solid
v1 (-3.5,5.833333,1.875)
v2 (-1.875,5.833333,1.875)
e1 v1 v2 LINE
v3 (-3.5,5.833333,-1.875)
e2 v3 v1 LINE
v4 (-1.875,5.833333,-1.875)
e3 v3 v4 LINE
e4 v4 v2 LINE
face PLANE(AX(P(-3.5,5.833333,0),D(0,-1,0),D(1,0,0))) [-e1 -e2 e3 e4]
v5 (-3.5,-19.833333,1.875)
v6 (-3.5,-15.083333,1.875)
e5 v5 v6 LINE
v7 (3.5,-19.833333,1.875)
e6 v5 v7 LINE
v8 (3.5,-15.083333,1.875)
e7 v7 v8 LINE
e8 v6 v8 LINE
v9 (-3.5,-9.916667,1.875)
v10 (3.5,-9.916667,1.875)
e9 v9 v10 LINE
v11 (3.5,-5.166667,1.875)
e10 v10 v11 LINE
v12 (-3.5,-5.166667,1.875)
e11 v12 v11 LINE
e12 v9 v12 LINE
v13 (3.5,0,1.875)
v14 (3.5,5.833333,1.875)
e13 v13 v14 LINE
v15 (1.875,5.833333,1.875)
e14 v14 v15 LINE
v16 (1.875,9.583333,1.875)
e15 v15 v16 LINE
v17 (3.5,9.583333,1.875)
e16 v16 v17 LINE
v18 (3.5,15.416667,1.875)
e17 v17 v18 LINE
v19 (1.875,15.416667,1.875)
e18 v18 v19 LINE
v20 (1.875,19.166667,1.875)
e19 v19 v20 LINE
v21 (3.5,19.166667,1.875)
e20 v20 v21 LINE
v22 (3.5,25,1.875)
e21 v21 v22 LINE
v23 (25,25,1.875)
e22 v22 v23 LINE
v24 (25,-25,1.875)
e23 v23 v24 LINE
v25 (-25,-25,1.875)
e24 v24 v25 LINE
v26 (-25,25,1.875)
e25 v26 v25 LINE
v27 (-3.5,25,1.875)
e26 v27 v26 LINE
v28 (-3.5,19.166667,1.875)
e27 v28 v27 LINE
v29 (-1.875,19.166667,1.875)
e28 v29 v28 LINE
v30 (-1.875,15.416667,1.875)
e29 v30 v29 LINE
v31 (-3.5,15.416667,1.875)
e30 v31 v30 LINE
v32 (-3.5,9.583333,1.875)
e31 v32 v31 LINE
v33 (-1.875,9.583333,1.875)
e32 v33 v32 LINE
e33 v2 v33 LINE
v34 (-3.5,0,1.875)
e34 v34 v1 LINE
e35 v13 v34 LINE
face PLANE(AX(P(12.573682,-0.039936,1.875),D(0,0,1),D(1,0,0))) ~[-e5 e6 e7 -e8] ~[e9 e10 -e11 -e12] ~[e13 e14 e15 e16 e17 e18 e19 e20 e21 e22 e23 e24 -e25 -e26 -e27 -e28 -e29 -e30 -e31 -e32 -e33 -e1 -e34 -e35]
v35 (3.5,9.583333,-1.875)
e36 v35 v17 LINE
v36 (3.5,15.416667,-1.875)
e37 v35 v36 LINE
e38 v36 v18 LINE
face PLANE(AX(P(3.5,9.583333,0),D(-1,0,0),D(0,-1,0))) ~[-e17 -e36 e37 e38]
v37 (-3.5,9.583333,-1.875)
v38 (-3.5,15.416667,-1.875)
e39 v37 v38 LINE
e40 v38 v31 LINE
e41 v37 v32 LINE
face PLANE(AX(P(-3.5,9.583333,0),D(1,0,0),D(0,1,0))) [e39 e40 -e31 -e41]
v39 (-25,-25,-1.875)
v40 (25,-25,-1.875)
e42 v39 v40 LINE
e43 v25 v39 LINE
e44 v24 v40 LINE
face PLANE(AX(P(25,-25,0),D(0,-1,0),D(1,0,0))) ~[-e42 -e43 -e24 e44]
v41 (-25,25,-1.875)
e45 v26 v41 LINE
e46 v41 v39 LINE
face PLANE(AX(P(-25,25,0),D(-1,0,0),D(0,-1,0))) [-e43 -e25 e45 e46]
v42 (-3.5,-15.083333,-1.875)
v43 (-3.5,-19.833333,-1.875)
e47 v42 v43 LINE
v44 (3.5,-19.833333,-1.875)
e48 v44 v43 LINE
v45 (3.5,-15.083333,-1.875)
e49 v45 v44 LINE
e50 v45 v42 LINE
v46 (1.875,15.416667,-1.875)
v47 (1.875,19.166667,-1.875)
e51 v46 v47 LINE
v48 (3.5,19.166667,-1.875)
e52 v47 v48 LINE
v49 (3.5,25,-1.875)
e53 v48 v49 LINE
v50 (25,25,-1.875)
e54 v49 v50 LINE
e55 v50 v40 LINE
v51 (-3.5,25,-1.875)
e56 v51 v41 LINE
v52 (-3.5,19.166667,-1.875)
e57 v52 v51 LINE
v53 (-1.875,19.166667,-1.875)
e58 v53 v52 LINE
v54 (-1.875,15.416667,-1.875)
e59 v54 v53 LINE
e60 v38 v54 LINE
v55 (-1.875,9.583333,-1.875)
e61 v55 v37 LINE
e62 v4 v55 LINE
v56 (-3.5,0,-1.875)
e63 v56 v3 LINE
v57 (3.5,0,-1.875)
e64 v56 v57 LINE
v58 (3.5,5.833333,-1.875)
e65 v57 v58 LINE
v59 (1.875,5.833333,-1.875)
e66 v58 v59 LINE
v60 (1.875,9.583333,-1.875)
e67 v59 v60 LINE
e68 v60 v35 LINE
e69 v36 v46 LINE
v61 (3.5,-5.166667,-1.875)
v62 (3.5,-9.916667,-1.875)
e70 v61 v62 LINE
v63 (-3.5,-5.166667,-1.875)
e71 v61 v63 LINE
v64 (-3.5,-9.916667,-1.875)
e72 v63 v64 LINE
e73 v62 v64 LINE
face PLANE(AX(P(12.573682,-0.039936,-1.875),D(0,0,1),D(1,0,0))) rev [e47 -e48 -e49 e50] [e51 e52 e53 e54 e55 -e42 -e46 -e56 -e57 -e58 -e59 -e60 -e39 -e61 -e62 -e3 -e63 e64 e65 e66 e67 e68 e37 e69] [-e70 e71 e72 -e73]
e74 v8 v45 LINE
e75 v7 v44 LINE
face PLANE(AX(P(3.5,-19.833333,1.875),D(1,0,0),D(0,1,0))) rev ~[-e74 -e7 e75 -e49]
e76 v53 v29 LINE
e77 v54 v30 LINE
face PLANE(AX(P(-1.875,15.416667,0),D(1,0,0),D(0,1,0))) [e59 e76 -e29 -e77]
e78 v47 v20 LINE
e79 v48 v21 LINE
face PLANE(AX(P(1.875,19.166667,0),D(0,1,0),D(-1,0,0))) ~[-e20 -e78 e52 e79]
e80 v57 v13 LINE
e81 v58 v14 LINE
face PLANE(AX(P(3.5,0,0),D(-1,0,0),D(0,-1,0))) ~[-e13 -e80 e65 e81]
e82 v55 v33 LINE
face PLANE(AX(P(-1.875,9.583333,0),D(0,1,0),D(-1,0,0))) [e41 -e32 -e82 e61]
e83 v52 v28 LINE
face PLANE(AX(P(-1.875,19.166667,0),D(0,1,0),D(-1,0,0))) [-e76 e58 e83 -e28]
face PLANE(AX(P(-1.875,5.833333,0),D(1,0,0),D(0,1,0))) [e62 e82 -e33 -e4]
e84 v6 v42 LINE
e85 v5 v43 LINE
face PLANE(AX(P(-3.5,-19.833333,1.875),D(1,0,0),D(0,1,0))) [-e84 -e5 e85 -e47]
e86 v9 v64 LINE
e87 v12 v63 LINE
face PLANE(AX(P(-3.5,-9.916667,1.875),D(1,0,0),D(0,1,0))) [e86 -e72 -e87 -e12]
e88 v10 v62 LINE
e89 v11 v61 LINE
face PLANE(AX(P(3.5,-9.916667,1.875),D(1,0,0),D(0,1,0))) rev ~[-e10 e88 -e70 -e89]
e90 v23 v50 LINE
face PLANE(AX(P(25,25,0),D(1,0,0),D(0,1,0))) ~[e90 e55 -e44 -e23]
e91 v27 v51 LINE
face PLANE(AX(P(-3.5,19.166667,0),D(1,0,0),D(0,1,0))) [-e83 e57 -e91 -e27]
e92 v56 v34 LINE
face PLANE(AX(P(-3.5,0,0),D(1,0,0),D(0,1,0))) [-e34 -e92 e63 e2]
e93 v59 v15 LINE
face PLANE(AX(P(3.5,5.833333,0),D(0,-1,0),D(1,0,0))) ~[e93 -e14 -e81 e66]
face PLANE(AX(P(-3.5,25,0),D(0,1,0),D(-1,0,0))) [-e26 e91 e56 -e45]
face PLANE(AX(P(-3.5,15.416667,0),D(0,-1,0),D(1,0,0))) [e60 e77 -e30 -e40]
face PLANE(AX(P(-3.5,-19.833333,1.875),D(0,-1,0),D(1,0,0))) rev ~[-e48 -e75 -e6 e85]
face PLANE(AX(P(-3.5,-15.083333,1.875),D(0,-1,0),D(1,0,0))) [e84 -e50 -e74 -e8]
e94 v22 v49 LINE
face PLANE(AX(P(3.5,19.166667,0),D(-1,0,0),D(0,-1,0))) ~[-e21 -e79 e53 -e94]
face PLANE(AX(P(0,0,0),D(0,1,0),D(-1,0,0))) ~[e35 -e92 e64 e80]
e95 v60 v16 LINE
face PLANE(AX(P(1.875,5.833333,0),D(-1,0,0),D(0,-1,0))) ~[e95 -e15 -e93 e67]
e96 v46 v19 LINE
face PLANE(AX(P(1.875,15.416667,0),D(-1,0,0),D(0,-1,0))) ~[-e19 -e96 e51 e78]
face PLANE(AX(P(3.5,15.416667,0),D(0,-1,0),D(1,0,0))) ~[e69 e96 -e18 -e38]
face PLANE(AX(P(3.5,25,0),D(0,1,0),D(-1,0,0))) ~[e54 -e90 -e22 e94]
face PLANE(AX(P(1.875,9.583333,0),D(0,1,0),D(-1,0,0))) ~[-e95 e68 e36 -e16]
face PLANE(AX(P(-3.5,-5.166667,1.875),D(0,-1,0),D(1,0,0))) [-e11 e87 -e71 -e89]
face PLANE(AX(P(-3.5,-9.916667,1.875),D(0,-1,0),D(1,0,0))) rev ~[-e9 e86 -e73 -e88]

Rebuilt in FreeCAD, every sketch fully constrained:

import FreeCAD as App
import Part
import Sketcher
Q = App.Units.Quantity

doc = App.newDocument("Part")
body = doc.addObject("PartDesign::Body", "Body")

sketch1 = body.newObject("Sketcher::SketchObject", "Sketch")
sketch1.AttachmentSupport = (doc.getObject("XY_Plane"), [""])
sketch1.MapMode = "FlatFace"
sketch1.addGeometry([
    Part.LineSegment(App.Vector(-25, -25, 0), App.Vector(0, -25, 0)),
    Part.LineSegment(App.Vector(0, -25, 0), App.Vector(0, 0, 0)),
    Part.LineSegment(App.Vector(0, 0, 0), App.Vector(-3.5, 0, 0)),
    Part.LineSegment(App.Vector(-3.5, 0, 0), App.Vector(-3.5, 5.8, 0)),
    Part.LineSegment(App.Vector(-3.5, 5.8, 0), App.Vector(-1.9, 5.8, 0)),
    Part.LineSegment(App.Vector(-1.9, 5.8, 0), App.Vector(-1.9, 9.6, 0)),
    Part.LineSegment(App.Vector(-1.9, 9.6, 0), App.Vector(-3.5, 9.6, 0)),
    Part.LineSegment(App.Vector(-3.5, 9.6, 0), App.Vector(-3.5, 15.4, 0)),
    Part.LineSegment(App.Vector(-3.5, 15.4, 0), App.Vector(-1.9, 15.4, 0)),
    Part.LineSegment(App.Vector(-1.9, 15.4, 0), App.Vector(-1.9, 19.2, 0)),
    Part.LineSegment(App.Vector(-1.9, 19.2, 0), App.Vector(-3.5, 19.2, 0)),
    Part.LineSegment(App.Vector(-3.5, 19.2, 0), App.Vector(-3.5, 25, 0)),
    Part.LineSegment(App.Vector(-3.5, 25, 0), App.Vector(-25, 25, 0)),
    Part.LineSegment(App.Vector(-25, 25, 0), App.Vector(-25, -25, 0)),
], False)
sketch1.addConstraint([
    Sketcher.Constraint("Coincident", 0, 2, 1, 1),
    Sketcher.Constraint("Coincident", 1, 2, 2, 1),
    Sketcher.Constraint("Coincident", 2, 2, 3, 1),
    Sketcher.Constraint("Coincident", 3, 2, 4, 1),
    Sketcher.Constraint("Coincident", 4, 2, 5, 1),
    Sketcher.Constraint("Coincident", 5, 2, 6, 1),
    Sketcher.Constraint("Coincident", 6, 2, 7, 1),
    Sketcher.Constraint("Coincident", 7, 2, 8, 1),
    Sketcher.Constraint("Coincident", 8, 2, 9, 1),
    Sketcher.Constraint("Coincident", 9, 2, 10, 1),
    Sketcher.Constraint("Coincident", 10, 2, 11, 1),
    Sketcher.Constraint("Coincident", 11, 2, 12, 1),
    Sketcher.Constraint("Coincident", 12, 2, 13, 1),
    Sketcher.Constraint("Coincident", 13, 2, 0, 1),
    Sketcher.Constraint("Horizontal", 0),
    Sketcher.Constraint("Vertical", 1),
    Sketcher.Constraint("Horizontal", 2),
    Sketcher.Constraint("Vertical", 3),
    Sketcher.Constraint("Horizontal", 4),
    Sketcher.Constraint("Vertical", 5),
    Sketcher.Constraint("Horizontal", 6),
    Sketcher.Constraint("Vertical", 7),
    Sketcher.Constraint("Horizontal", 8),
    Sketcher.Constraint("Vertical", 9),
    Sketcher.Constraint("Horizontal", 10),
    Sketcher.Constraint("Vertical", 11),
    Sketcher.Constraint("Horizontal", 12),
    Sketcher.Constraint("Vertical", 13),
    Sketcher.Constraint("Coincident", 1, 2, -1, 1),
    Sketcher.Constraint("Vertical", 3, 2, 6, 2),
    Sketcher.Constraint("Vertical", 5, 2, 8, 2),
    Sketcher.Constraint("Vertical", 7, 2, 10, 2),
    Sketcher.Constraint("Equal", 0, 1),
    Sketcher.Constraint("Equal", 3, 7),
    Sketcher.Constraint("Equal", 5, 9),
    Sketcher.Constraint("Equal", 7, 11),
    Sketcher.Constraint("DistanceX", 0, 1, 0, 2, Q("25 mm")),
    Sketcher.Constraint("DistanceY", 13, 2, 13, 1, Q("50 mm")),
    Sketcher.Constraint("DistanceX", 2, 2, 2, 1, Q("3.5 mm")),
    Sketcher.Constraint("DistanceY", 5, 1, 5, 2, Q("3.75 mm")),
    Sketcher.Constraint("DistanceX", 4, 1, 4, 2, Q("1.625 mm")),
])
pad1 = body.newObject("PartDesign::Pad", "Pad")
pad1.Profile = sketch1
pad1.Length = 3.75
pad1.Midplane = True
body2 = doc.addObject("PartDesign::Body", "Body001")
doc.recompute()

body2.BaseFeature = body
doc.recompute()

mirroring = doc.addObject("Part::Mirroring", "Mirroring")
mirroring.Source = body
mirroring.Base = App.Vector(0, -12.5, 0)
mirroring.Normal = App.Vector(1, 0, 0)
body3 = doc.addObject("PartDesign::Body", "Body002")
body3.BaseFeature = mirroring
boolean = body2.newObject("PartDesign::Boolean", "Boolean")
boolean.Type = "Fuse"
boolean.addObjects([body3])
doc.recompute()

sketch2 = body2.newObject("Sketcher::SketchObject", "Sketch001")
sketch2.AttachmentSupport = (doc.getObject("XY_Plane001"), [""])
sketch2.MapMode = "FlatFace"
sketch2.AttachmentOffset = App.Placement(App.Vector(0, 0, 1.875), App.Rotation())
sketch2.addGeometry([
    Part.LineSegment(App.Vector(-3.5, -5.2, 0), App.Vector(-3.5, -9.9, 0)),
    Part.LineSegment(App.Vector(-3.5, -9.9, 0), App.Vector(3.5, -9.9, 0)),
    Part.LineSegment(App.Vector(3.5, -9.9, 0), App.Vector(3.5, -5.2, 0)),
    Part.LineSegment(App.Vector(3.5, -5.2, 0), App.Vector(-3.5, -5.2, 0)),
    Part.LineSegment(App.Vector(-3.5, -15.1, 0), App.Vector(-3.5, -19.8, 0)),
    Part.LineSegment(App.Vector(-3.5, -19.8, 0), App.Vector(3.5, -19.8, 0)),
    Part.LineSegment(App.Vector(3.5, -19.8, 0), App.Vector(3.5, -15.1, 0)),
    Part.LineSegment(App.Vector(3.5, -15.1, 0), App.Vector(-3.5, -15.1, 0)),
], False)
sketch2.addConstraint([
    Sketcher.Constraint("Coincident", 0, 2, 1, 1),
    Sketcher.Constraint("Coincident", 1, 2, 2, 1),
    Sketcher.Constraint("Coincident", 2, 2, 3, 1),
    Sketcher.Constraint("Coincident", 3, 2, 0, 1),
    Sketcher.Constraint("Coincident", 4, 2, 5, 1),
    Sketcher.Constraint("Coincident", 5, 2, 6, 1),
    Sketcher.Constraint("Coincident", 6, 2, 7, 1),
    Sketcher.Constraint("Coincident", 7, 2, 4, 1),
    Sketcher.Constraint("Vertical", 0),
    Sketcher.Constraint("Horizontal", 1),
    Sketcher.Constraint("Vertical", 2),
    Sketcher.Constraint("Horizontal", 3),
    Sketcher.Constraint("Vertical", 4),
    Sketcher.Constraint("Horizontal", 5),
    Sketcher.Constraint("Vertical", 6),
    Sketcher.Constraint("Horizontal", 7),
    Sketcher.Constraint("Vertical", 3, 2, 4, 2),
    Sketcher.Constraint("Vertical", 2, 2, 5, 2),
    Sketcher.Constraint("Equal", 2, 4),
    Sketcher.Constraint("DistanceX", 1, 1, 1, 2, Q("7 mm")),
    Sketcher.Constraint("DistanceY", 0, 2, 0, 1, Q("4.75 mm")),
    Sketcher.Constraint("DistanceX", 0, 2, -1, 1, Q("3.5 mm")),
    Sketcher.Constraint("DistanceY", 0, 2, -1, 1, Q("9.916667 mm")),
    Sketcher.Constraint("DistanceY", 4, 2, -1, 1, Q("19.833333 mm")),
])
pocket1 = body2.newObject("PartDesign::Pocket", "Pocket")
pocket1.Profile = sketch2
pocket1.Length = 25
mirroring.Visibility = False

doc.recompute()
